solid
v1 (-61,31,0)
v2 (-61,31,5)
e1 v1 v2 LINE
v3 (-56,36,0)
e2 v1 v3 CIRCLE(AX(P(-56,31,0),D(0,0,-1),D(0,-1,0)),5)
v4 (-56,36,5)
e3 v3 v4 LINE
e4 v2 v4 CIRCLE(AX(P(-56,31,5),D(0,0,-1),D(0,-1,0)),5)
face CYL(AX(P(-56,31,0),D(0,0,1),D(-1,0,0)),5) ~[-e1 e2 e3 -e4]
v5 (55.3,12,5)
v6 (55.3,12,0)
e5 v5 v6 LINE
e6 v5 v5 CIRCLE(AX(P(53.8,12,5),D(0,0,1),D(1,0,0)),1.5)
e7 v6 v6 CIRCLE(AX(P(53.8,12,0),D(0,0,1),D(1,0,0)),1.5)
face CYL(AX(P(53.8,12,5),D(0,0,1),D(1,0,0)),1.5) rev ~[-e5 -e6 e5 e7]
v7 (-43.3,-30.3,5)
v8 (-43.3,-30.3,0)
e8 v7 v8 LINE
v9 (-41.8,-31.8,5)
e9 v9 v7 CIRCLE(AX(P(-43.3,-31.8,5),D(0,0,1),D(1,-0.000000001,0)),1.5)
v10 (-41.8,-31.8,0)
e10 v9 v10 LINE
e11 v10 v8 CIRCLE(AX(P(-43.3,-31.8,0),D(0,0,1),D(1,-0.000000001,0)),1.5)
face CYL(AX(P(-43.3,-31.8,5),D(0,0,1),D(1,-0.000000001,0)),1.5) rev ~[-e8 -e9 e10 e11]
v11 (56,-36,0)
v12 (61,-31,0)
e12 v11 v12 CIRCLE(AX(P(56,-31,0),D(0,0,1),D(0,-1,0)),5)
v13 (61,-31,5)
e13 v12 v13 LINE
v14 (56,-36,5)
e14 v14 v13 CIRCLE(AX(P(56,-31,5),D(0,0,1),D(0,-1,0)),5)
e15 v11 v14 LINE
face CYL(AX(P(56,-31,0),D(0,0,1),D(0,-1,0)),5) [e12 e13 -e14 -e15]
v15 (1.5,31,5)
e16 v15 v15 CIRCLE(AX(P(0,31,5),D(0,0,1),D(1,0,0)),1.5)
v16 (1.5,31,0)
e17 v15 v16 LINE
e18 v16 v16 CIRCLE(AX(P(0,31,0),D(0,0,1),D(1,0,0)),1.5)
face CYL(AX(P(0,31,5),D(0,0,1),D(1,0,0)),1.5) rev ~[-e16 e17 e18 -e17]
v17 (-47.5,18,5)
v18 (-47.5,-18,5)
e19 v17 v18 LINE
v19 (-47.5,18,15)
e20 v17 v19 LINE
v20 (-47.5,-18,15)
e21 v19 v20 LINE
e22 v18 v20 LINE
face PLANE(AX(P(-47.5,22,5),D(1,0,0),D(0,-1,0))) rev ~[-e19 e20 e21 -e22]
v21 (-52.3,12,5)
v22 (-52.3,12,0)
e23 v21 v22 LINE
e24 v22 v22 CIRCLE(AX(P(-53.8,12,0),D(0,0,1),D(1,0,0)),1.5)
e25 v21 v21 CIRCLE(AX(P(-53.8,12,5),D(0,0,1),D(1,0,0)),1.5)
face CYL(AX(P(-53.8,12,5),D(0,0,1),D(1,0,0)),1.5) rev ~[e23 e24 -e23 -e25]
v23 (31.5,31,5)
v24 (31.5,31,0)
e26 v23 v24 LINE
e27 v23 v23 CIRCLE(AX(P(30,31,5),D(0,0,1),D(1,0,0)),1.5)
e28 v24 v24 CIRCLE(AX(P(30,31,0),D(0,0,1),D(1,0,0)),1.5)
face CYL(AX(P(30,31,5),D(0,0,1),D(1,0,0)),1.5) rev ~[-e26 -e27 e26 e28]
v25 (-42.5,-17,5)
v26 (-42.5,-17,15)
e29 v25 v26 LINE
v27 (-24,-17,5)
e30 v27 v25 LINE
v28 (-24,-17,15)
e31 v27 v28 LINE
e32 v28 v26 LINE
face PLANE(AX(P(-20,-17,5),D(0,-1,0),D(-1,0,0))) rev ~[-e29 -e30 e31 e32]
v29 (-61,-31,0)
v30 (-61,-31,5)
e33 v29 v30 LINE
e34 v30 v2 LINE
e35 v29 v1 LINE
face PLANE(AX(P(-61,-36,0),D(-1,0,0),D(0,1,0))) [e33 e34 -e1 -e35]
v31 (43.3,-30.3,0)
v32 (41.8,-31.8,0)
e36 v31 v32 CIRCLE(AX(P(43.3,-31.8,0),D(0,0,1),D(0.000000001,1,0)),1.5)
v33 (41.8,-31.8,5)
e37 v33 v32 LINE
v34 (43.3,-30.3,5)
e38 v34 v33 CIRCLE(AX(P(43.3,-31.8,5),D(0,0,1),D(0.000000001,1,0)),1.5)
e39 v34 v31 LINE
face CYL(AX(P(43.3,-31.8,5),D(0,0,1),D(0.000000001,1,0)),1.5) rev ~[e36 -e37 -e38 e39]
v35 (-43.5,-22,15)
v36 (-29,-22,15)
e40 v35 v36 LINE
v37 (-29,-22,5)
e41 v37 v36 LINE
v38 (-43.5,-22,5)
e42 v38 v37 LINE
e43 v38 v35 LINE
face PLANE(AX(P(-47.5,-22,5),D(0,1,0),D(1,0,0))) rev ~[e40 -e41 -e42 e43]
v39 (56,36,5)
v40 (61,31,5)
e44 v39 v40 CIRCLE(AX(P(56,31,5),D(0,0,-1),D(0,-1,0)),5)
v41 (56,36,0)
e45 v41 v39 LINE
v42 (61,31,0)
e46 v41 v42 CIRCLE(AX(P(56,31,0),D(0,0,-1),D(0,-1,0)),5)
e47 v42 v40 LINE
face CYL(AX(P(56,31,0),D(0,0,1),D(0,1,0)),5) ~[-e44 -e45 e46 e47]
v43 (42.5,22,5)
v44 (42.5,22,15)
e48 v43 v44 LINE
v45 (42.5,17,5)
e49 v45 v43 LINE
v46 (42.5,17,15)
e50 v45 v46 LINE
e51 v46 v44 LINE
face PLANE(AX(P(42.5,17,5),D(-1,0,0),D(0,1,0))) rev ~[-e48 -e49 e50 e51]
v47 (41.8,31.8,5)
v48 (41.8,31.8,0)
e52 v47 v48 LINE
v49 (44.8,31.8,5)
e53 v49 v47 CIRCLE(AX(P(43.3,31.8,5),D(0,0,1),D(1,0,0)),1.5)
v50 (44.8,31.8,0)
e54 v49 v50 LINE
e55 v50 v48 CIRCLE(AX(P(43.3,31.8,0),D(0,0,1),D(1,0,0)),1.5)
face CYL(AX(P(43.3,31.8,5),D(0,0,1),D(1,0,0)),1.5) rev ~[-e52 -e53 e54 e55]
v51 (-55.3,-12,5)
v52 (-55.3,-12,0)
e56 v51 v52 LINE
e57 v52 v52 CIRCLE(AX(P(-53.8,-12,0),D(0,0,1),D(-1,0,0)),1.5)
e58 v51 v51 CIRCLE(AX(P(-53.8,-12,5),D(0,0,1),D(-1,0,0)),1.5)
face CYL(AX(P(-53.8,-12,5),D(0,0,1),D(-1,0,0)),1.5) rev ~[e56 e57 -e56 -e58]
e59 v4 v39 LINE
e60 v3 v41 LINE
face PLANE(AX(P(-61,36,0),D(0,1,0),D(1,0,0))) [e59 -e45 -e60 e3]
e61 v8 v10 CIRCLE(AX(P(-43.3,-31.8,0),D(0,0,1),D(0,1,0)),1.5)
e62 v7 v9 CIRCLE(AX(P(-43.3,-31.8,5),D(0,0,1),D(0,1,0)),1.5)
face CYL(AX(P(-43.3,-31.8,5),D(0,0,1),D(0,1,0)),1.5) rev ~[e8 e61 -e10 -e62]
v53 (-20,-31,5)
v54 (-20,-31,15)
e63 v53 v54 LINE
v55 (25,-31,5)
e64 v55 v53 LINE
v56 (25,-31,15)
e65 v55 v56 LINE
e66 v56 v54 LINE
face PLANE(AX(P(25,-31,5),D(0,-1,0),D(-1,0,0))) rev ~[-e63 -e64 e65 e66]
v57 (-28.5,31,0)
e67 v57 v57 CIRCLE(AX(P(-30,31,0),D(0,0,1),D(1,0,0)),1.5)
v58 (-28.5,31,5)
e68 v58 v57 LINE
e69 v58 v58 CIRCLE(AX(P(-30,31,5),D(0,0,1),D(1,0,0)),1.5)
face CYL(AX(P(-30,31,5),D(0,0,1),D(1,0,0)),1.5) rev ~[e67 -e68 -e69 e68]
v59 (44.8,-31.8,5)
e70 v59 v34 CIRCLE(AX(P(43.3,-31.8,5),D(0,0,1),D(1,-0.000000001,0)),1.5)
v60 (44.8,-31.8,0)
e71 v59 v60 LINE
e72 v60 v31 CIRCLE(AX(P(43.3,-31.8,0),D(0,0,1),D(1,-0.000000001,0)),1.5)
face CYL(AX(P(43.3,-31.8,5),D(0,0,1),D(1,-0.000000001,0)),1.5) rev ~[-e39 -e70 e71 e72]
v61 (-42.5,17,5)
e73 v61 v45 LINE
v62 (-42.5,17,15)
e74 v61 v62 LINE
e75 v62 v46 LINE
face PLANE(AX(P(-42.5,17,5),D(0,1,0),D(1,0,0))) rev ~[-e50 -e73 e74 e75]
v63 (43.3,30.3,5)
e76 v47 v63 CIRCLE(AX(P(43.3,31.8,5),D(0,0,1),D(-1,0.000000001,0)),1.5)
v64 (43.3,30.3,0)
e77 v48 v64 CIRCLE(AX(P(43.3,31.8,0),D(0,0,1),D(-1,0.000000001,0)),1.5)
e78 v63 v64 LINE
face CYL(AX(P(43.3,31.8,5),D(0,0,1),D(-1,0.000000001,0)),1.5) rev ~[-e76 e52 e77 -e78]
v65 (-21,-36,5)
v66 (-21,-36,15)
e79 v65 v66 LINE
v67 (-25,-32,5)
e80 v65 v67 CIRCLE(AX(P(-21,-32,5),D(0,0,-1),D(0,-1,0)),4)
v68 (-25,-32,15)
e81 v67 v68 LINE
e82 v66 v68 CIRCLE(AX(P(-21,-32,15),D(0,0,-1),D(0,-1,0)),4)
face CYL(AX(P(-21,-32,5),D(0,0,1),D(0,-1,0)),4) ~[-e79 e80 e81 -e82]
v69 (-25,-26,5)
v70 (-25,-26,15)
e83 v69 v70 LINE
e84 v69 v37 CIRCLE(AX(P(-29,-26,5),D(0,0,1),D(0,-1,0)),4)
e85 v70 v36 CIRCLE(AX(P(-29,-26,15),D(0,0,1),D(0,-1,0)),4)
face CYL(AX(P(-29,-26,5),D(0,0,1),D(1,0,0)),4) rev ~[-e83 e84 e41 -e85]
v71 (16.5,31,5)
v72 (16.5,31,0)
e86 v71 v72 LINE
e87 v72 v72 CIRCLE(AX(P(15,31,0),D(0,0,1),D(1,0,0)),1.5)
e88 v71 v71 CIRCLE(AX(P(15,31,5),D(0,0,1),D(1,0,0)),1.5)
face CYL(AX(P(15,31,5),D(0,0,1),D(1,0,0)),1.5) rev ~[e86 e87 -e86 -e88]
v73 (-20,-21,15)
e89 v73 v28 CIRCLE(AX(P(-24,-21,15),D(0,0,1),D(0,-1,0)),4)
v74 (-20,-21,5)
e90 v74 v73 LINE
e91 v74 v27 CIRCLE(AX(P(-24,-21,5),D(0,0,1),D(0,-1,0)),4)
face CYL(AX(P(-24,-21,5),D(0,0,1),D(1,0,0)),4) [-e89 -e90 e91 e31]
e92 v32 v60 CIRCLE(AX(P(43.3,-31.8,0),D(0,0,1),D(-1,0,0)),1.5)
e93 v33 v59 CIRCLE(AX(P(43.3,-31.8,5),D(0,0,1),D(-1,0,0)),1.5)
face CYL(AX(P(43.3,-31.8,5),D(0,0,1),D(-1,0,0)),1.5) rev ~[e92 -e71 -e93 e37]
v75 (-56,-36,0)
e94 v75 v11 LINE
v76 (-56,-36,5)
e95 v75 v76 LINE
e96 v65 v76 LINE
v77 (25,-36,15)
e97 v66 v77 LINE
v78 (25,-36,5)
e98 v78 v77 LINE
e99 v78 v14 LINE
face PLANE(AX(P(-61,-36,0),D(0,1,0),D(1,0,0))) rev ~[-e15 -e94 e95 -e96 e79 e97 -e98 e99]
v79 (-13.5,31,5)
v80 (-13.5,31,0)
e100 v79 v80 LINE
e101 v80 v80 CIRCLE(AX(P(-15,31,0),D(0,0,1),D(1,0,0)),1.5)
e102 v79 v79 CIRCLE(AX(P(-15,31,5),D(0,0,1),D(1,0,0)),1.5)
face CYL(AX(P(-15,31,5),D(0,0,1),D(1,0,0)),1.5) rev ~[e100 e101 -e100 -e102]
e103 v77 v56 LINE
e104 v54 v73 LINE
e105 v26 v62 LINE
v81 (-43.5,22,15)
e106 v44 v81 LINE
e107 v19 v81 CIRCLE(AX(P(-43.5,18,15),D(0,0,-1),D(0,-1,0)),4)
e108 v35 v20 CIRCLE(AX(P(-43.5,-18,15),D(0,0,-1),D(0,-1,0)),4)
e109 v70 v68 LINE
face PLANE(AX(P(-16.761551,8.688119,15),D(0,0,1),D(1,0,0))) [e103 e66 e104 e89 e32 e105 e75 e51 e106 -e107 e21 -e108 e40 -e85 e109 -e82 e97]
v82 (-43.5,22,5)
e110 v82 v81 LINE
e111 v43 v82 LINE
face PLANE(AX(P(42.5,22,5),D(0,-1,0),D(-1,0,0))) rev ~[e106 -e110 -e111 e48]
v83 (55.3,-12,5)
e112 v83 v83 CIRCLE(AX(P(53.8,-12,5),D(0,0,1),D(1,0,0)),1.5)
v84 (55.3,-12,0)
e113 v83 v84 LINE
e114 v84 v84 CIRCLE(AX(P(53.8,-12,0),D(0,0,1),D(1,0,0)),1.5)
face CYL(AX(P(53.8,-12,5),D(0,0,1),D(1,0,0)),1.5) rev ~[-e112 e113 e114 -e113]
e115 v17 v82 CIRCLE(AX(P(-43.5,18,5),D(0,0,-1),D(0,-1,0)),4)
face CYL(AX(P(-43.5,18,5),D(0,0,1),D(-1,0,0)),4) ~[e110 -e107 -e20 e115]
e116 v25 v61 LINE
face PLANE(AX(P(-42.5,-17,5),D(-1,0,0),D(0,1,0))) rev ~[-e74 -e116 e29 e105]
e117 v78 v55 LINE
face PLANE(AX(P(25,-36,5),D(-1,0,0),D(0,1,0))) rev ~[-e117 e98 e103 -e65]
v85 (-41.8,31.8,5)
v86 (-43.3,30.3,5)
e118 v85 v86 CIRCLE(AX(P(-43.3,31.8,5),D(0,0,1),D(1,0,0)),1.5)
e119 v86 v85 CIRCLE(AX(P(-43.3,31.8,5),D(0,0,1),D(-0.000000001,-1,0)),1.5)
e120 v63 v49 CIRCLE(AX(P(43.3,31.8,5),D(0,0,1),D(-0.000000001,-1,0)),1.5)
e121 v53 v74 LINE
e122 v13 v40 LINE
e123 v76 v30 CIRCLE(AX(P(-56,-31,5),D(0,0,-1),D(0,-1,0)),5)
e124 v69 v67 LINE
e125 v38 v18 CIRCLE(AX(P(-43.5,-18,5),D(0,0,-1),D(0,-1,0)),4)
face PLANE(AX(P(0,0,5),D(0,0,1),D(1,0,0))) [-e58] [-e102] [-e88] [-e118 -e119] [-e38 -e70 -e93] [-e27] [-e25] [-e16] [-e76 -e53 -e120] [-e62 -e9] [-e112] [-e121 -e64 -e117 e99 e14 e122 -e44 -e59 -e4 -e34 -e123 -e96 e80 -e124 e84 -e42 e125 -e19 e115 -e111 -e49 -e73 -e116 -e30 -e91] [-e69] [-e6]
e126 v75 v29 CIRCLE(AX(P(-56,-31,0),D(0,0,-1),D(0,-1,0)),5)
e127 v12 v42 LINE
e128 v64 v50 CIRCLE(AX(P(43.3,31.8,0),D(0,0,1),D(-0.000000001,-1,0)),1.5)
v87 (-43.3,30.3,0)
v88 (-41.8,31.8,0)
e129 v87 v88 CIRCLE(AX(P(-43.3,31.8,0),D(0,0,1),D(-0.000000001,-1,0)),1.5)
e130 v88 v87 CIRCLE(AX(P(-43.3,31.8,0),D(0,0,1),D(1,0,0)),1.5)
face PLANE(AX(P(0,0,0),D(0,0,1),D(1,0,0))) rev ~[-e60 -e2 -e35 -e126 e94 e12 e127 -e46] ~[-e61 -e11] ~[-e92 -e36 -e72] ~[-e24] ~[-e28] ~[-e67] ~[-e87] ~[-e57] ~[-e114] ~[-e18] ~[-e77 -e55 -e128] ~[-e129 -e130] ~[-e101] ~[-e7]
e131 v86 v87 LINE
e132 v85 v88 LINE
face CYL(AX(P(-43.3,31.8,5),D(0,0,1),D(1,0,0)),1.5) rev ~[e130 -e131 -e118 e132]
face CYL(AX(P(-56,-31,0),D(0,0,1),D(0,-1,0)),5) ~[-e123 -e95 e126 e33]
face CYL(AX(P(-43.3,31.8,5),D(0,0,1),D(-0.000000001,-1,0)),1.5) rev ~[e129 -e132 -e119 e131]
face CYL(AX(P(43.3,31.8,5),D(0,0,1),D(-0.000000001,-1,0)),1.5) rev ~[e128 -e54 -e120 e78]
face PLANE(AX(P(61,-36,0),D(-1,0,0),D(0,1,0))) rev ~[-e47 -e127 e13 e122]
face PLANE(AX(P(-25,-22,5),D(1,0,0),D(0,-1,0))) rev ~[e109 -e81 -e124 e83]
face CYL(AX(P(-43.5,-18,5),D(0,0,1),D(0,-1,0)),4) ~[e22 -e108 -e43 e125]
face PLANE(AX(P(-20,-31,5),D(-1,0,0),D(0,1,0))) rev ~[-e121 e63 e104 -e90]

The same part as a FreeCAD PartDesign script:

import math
import FreeCAD as App
import Part
import Sketcher
from FreeCAD import Vector


def edges_at(feature, points):
    """Names of the edges that pass closest to the given points."""
    edges = feature.Shape.Edges
    near = lambda p: min(range(len(edges)), key=lambda i: edges[i].distToShape(Part.Vertex(*p))[0])
    return sorted({f"Edge{near(p) + 1}" for p in points})


def add_polygon(sketch, points):
    """Adds a closed chain of lines whose ends are joined by coincident constraints."""
    first, n = sketch.GeometryCount, len(points)
    for a, b in zip(points, points[1:] + points[:1]):
        sketch.addGeometry(Part.LineSegment(App.Vector(*a, 0), App.Vector(*b, 0)), False)
    for i in range(n):
        sketch.addConstraint(Sketcher.Constraint("Coincident", first + i, 2, first + (i + 1) % n, 1))

doc = App.newDocument("Part")
body = doc.addObject("PartDesign::Body", "Body")

sketch1 = doc.addObject("Sketcher::SketchObject", "Sketch")
body.addObject(sketch1)
sketch1.AttachmentSupport = (doc.XY_Plane, [""])
sketch1.MapMode = "FlatFace"
add_polygon(sketch1, [(-61, 36), (-61, -36), (61, -36), (61, 36)])
sketch1.addConstraint([
    Sketcher.Constraint("Vertical", 0),
    Sketcher.Constraint("Horizontal", 1),
    Sketcher.Constraint("Vertical", 2),
    Sketcher.Constraint("Horizontal", 3),
    Sketcher.Constraint("Symmetric", 0, 2, 2, 2, -1, 1),
    Sketcher.Constraint("DistanceX", 1, 1, 1, 2, 122.0),
    Sketcher.Constraint("DistanceY", 0, 2, 0, 1, 72.0),
])
pad1 = doc.addObject("PartDesign::Pad", "Pad")
body.addObject(pad1)
pad1.Profile = sketch1
pad1.Length = 5

sketch2 = doc.addObject("Sketcher::SketchObject", "Sketch001")
body.addObject(sketch2)
sketch2.AttachmentSupport = (doc.XY_Plane, [""])
sketch2.MapMode = "FlatFace"
sketch2.AttachmentOffset = App.Placement(Vector(0, 0, 5), App.Rotation())
sketch2.addGeometry([
    Part.Circle(Vector(-53.8, 12, 0), Vector(0, 0, 1), 1.5),
    Part.Circle(Vector(53.8, 12, 0), Vector(0, 0, 1), 1.5),
    Part.Circle(Vector(53.8, -12, 0), Vector(0, 0, 1), 1.5),
    Part.Circle(Vector(-53.8, -12, 0), Vector(0, 0, 1), 1.5),
], False)
sketch2.addConstraint([
    Sketcher.Constraint("Equal", 0, 1),
    Sketcher.Constraint("Equal", 1, 2),
    Sketcher.Constraint("Equal", 2, 3),
    Sketcher.Constraint("Symmetric", 0, 3, 2, 3, -1, 1),
    Sketcher.Constraint("Symmetric", 1, 3, 3, 3, -1, 1),
    Sketcher.Constraint("Symmetric", 0, 3, 1, 3, -2),
    Sketcher.Constraint("Diameter", 0, 3.0),
    Sketcher.Constraint("DistanceY", -1, 1, 0, 3, 12.0),
    Sketcher.Constraint("DistanceX", 0, 3, -1, 1, 53.8),
])
pocket1 = doc.addObject("PartDesign::Pocket", "Pocket")
body.addObject(pocket1)
pocket1.Profile = sketch2
pocket1.Length = 10

sketch3 = doc.addObject("Sketcher::SketchObject", "Sketch002")
body.addObject(sketch3)
sketch3.AttachmentSupport = (doc.XY_Plane, [""])
sketch3.MapMode = "FlatFace"
sketch3.AttachmentOffset = App.Placement(Vector(0, 0, 5), App.Rotation())
add_polygon(sketch3, [(-42, 17), (42, 17), (42, 22), (-48, 22), (-48, -22), (-25, -22), (-25, -36), (25, -36), (25, -31), (-20, -31), (-20, -17), (-42, -17)])
sketch3.addConstraint([
    Sketcher.Constraint("Horizontal", 0),
    Sketcher.Constraint("Vertical", 1),
    Sketcher.Constraint("Horizontal", 2),
    Sketcher.Constraint("Vertical", 3),
    Sketcher.Constraint("Horizontal", 4),
    Sketcher.Constraint("Vertical", 5),
    Sketcher.Constraint("Horizontal", 6),
    Sketcher.Constraint("Vertical", 7),
    Sketcher.Constraint("Horizontal", 8),
    Sketcher.Constraint("Vertical", 9),
    Sketcher.Constraint("Horizontal", 10),
    Sketcher.Constraint("Vertical", 11),
    Sketcher.Constraint("Symmetric", 0, 2, 10, 2, -1, 1),
    Sketcher.Constraint("Equal", 4, 10),
    Sketcher.Constraint("Equal", 1, 7),
    Sketcher.Constraint("Equal", 5, 9),
    Sketcher.Constraint("DistanceX", 0, 1, 0, 2, 85.0),
    Sketcher.Constraint("DistanceX", 2, 2, 2, 1, 90.0),
    Sketcher.Constraint("DistanceX", 6, 1, 6, 2, 50.0),
    Sketcher.Constraint("DistanceY", 1, 1, 1, 2, 5.0),
    Sketcher.Constraint("DistanceY", 3, 2, 3, 1, 44.0),
    Sketcher.Constraint("DistanceY", 5, 2, 5, 1, 14.0),
    Sketcher.Constraint("DistanceX", 4, 1, 4, 2, 22.5),
])
pad2 = doc.addObject("PartDesign::Pad", "Pad001")
body.addObject(pad2)
pad2.Profile = sketch3
pad2.Length = 10

sketch4 = doc.addObject("Sketcher::SketchObject", "Sketch003")
body.addObject(sketch4)
sketch4.AttachmentSupport = (doc.XY_Plane, [""])
sketch4.MapMode = "FlatFace"
sketch4.AttachmentOffset = App.Placement(Vector(0, 0, 5), App.Rotation())
sketch4.addGeometry([
    Part.Circle(Vector(0, 31, 0), Vector(0, 0, 1), 1.5),
    Part.Circle(Vector(15, 31, 0), Vector(0, 0, 1), 1.5),
    Part.Circle(Vector(30, 31, 0), Vector(0, 0, 1), 1.5),
    Part.Circle(Vector(-15, 31, 0), Vector(0, 0, 1), 1.5),
    Part.Circle(Vector(-30, 31, 0), Vector(0, 0, 1), 1.5),
], False)
sketch4.addConstraint([
    Sketcher.Constraint("Equal", 0, 1),
    Sketcher.Constraint("Equal", 1, 2),
    Sketcher.Constraint("Equal", 2, 3),
    Sketcher.Constraint("Equal", 3, 4),
    Sketcher.Constraint("Symmetric", 1, 3, 3, 3, -2),
    Sketcher.Constraint("Symmetric", 2, 3, 4, 3, -2),
    Sketcher.Constraint("PointOnObject", 0, 3, -2),
    Sketcher.Constraint("Horizontal", 0, 3, 1, 3),
    Sketcher.Constraint("Horizontal", 1, 3, 2, 3),
    Sketcher.Constraint("Diameter", 0, 3.0),
    Sketcher.Constraint("DistanceY", -1, 1, 0, 3, 31.0),
    Sketcher.Constraint("DistanceX", -1, 1, 1, 3, 15.0),
    Sketcher.Constraint("DistanceX", -1, 1, 2, 3, 30.0),
])
pocket2 = doc.addObject("PartDesign::Pocket", "Pocket001")
body.addObject(pocket2)
pocket2.Profile = sketch4
pocket2.Length = 15

sketch5 = doc.addObject("Sketcher::SketchObject", "Sketch004")
body.addObject(sketch5)
sketch5.AttachmentSupport = (doc.XY_Plane, [""])
sketch5.MapMode = "FlatFace"
sketch5.AttachmentOffset = App.Placement(Vector(0, 0, 5), App.Rotation())
sketch5.addGeometry([
    Part.ArcOfCircle(Part.Circle(Vector(43.3, 31.8, 0), Vector(0, 0, 1), 1.5), math.radians(0), math.radians(180)),
    Part.ArcOfCircle(Part.Circle(Vector(43.3, 31.8, 0), Vector(0, 0, 1), 1.5), math.radians(180), math.radians(270)),
    Part.ArcOfCircle(Part.Circle(Vector(43.3, 31.8, 0), Vector(0, 0, 1), 1.5), math.radians(-90), math.radians(0)),
    Part.ArcOfCircle(Part.Circle(Vector(43.3, -31.8, 0), Vector(0, 0, 1), 1.5), math.radians(0), math.radians(90)),
    Part.ArcOfCircle(Part.Circle(Vector(43.3, -31.8, 0), Vector(0, 0, 1), 1.5), math.radians(90), math.radians(180)),
    Part.ArcOfCircle(Part.Circle(Vector(43.3, -31.8, 0), Vector(0, 0, 1), 1.5), math.radians(180), math.radians(360)),
    Part.ArcOfCircle(Part.Circle(Vector(-43.3, -31.8, 0), Vector(0, 0, 1), 1.5), math.radians(0), math.radians(90)),
    Part.ArcOfCircle(Part.Circle(Vector(-43.3, -31.8, 0), Vector(0, 0, 1), 1.5), math.radians(90), math.radians(360)),
    Part.ArcOfCircle(Part.Circle(Vector(-43.3, 31.8, 0), Vector(0, 0, 1), 1.5), math.radians(0), math.radians(270)),
    Part.ArcOfCircle(Part.Circle(Vector(-43.3, 31.8, 0), Vector(0, 0, 1), 1.5), math.radians(-90), math.radians(0)),
], False)
sketch5.addConstraint([
    Sketcher.Constraint("Tangent", 0, 2, 1, 1),
    Sketcher.Constraint("Tangent", 1, 2, 2, 1),
    Sketcher.Constraint("Tangent", 2, 2, 0, 1),
    Sketcher.Constraint("Tangent", 3, 2, 4, 1),
    Sketcher.Constraint("Tangent", 4, 2, 5, 1),
    Sketcher.Constraint("Tangent", 5, 2, 3, 1),
    Sketcher.Constraint("Tangent", 6, 1, 7, 2),
    Sketcher.Constraint("Coincident", 7, 1, 6, 2),
    Sketcher.Constraint("Tangent", 8, 1, 9, 2),
    Sketcher.Constraint("Coincident", 9, 1, 8, 2),
    Sketcher.Constraint("Equal", 2, 3),
    Sketcher.Constraint("Equal", 5, 6),
    Sketcher.Constraint("Equal", 7, 8),
    Sketcher.Constraint("Symmetric", 0, 3, 6, 3, -1, 1),
    Sketcher.Constraint("Symmetric", 3, 3, 8, 3, -1, 1),
    Sketcher.Constraint("Symmetric", 3, 3, 6, 3, -2),
    Sketcher.Constraint("Horizontal", 9, 3, 0, 2),
    Sketcher.Constraint("Horizontal", 0, 2, 2, 2),
    Sketcher.Constraint("Horizontal", 7, 3, 4, 2),
    Sketcher.Constraint("Horizontal", 4, 2, 5, 2),
    Sketcher.Constraint("Horizontal", 5, 2, 6, 1),
    Sketcher.Constraint("Horizontal", 2, 2, 8, 1),
    Sketcher.Constraint("Vertical", 5, 3, 1, 2),
    Sketcher.Constraint("Vertical", 1, 2, 3, 2),
    Sketcher.Constraint("Vertical", 9, 3, 7, 1),
    Sketcher.Constraint("Vertical", 7, 1, 9, 1),
    Sketcher.Constraint("Radius", 0, 1.5),
    Sketcher.Constraint("DistanceX", -1, 1, 0, 3, 43.3),
    Sketcher.Constraint("DistanceY", -1, 1, 0, 3, 31.8),
])
pocket3 = doc.addObject("PartDesign::Pocket", "Pocket002")
body.addObject(pocket3)
pocket3.Profile = sketch5
pocket3.Length = 25
doc.recompute()

fillet = doc.addObject("PartDesign::Fillet", "Fillet")
body.addObject(fillet)
fillet.Base = (pocket3, edges_at(pocket3, [
    (-47.5, 22, 10),
    (-47.5, -22, 10),
    (-25, -22, 10),
    (-25, -36, 10),
    (-20, -17, 10),
]))
fillet.Radius = 4
doc.recompute()

fillet2 = doc.addObject("PartDesign::Fillet", "Fillet001")
body.addObject(fillet2)
fillet2.Base = (fillet, edges_at(fillet, [
    (61, -36, 2.5),
    (-61, -36, 2.5),
    (-61, 36, 2.5),
    (61, 36, 2.5),
]))
fillet2.Radius = 5

doc.recompute()
